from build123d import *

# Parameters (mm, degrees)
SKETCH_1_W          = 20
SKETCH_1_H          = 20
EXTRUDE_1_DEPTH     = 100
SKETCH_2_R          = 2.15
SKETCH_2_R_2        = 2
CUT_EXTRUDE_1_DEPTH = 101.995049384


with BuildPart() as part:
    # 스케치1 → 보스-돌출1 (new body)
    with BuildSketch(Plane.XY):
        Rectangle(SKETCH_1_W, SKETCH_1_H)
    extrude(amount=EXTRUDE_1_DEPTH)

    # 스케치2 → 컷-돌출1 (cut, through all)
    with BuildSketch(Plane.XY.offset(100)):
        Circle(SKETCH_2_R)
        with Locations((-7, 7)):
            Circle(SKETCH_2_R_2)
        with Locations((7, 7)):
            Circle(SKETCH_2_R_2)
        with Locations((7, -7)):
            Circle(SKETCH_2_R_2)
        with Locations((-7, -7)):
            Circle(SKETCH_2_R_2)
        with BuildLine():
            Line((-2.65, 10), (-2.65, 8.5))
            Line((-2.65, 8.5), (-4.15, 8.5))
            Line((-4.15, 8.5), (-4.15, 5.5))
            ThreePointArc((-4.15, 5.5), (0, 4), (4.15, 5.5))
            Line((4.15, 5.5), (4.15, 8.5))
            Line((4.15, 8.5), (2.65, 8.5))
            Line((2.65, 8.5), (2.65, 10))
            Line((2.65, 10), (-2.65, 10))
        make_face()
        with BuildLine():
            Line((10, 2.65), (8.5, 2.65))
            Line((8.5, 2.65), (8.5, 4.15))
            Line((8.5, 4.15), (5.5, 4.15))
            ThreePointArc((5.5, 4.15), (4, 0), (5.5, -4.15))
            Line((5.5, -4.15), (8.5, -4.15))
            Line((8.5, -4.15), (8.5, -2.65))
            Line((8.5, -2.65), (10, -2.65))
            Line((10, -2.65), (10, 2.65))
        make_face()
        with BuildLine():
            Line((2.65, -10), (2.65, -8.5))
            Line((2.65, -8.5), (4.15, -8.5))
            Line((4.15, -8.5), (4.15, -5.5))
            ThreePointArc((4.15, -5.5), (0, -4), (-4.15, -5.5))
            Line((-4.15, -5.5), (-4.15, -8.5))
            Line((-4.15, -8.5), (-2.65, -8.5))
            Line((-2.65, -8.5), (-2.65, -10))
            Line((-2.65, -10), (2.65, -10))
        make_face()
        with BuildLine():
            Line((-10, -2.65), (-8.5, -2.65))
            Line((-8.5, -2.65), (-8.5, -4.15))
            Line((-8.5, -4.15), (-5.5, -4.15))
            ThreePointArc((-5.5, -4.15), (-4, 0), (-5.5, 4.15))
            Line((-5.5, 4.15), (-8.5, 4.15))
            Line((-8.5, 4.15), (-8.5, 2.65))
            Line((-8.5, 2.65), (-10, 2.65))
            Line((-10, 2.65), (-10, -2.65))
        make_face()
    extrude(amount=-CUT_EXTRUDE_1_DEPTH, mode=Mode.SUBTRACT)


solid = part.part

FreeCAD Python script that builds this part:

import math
import FreeCAD as App
import Part
import Sketcher


def add_polygon(sketch, points):
    """Adds a closed chain of lines whose ends are joined by coincident constraints."""
    first, n = sketch.GeometryCount, len(points)
    for a, b in zip(points, points[1:] + points[:1]):
        sketch.addGeometry(Part.LineSegment(App.Vector(*a, 0), App.Vector(*b, 0)), False)
    for i in range(n):
        sketch.addConstraint(Sketcher.Constraint("Coincident", first + i, 2, first + (i + 1) % n, 1))

doc = App.newDocument("Part")
body = doc.addObject("PartDesign::Body", "Body")

# Sketch on XY plane
sketch1 = body.newObject("Sketcher::SketchObject", "Sketch")
sketch1.AttachmentSupport = (doc.getObject("XY_Plane"), [""])
sketch1.MapMode = "FlatFace"
add_polygon(sketch1, [(-10, 10), (-10, -10), (10, -10), (10, 10)])  # lines 0-3
sketch1.addConstraint([
    Sketcher.Constraint("Vertical", 0),
    Sketcher.Constraint("Horizontal", 1),
    Sketcher.Constraint("Vertical", 2),
    Sketcher.Constraint("Horizontal", 3),
    Sketcher.Constraint("Symmetric", 0, 2, 2, 2, -1, 1),
    Sketcher.Constraint("Equal", 3, 0),
    Sketcher.Constraint("DistanceX", 1, 1, 1, 2, 20.0),
])
pad1 = body.newObject("PartDesign::Pad", "Pad")
pad1.Profile = sketch1
pad1.Length = 100

# Sketch on XY plane
sketch2 = body.newObject("Sketcher::SketchObject", "Sketch001")
sketch2.AttachmentSupport = (doc.getObject("XY_Plane"), [""])
sketch2.MapMode = "FlatFace"
sketch2.AttachmentOffset = App.Placement(App.Vector(0, 0, 100), App.Rotation())
sketch2.addGeometry([
    Part.Circle(App.Vector(0, 0, 0), App.Vector(0, 0, 1), 2.15),  # 0
    Part.Circle(App.Vector(-7, 7, 0), App.Vector(0, 0, 1), 2),  # 1
    Part.Circle(App.Vector(7, 7, 0), App.Vector(0, 0, 1), 2),  # 2
    Part.Circle(App.Vector(7, -7, 0), App.Vector(0, 0, 1), 2),  # 3
    Part.Circle(App.Vector(-7, -7, 0), App.Vector(0, 0, 1), 2),  # 4
    Part.LineSegment(App.Vector(-2.65, 10, 0), App.Vector(-2.65, 8.5, 0)),  # 5
    Part.LineSegment(App.Vector(-2.65, 8.5, 0), App.Vector(-4.15, 8.5, 0)),  # 6
    Part.LineSegment(App.Vector(-4.15, 8.5, 0), App.Vector(-4.15, 5.5, 0)),  # 7
    Part.ArcOfCircle(Part.Circle(App.Vector(0, 10.490833, 0), App.Vector(0, 0, 1), 6.490833), math.radians(-129.744352), math.radians(-50.255648)),  # 8
    Part.LineSegment(App.Vector(4.15, 5.5, 0), App.Vector(4.15, 8.5, 0)),  # 9
    Part.LineSegment(App.Vector(4.15, 8.5, 0), App.Vector(2.65, 8.5, 0)),  # 10
    Part.LineSegment(App.Vector(2.65, 8.5, 0), App.Vector(2.65, 10, 0)),  # 11
    Part.LineSegment(App.Vector(2.65, 10, 0), App.Vector(-2.65, 10, 0)),  # 12
    Part.LineSegment(App.Vector(10, 2.65, 0), App.Vector(8.5, 2.65, 0)),  # 13
    Part.LineSegment(App.Vector(8.5, 2.65, 0), App.Vector(8.5, 4.15, 0)),  # 14
    Part.LineSegment(App.Vector(8.5, 4.15, 0), App.Vector(5.5, 4.15, 0)),  # 15
    Part.ArcOfCircle(Part.Circle(App.Vector(10.490833, 0, 0), App.Vector(0, 0, 1), 6.490833), math.radians(140.255648), math.radians(219.744352)),  # 16
    Part.LineSegment(App.Vector(5.5, -4.15, 0), App.Vector(8.5, -4.15, 0)),  # 17
    Part.LineSegment(App.Vector(8.5, -4.15, 0), App.Vector(8.5, -2.65, 0)),  # 18
    Part.LineSegment(App.Vector(8.5, -2.65, 0), App.Vector(10, -2.65, 0)),  # 19
    Part.LineSegment(App.Vector(10, -2.65, 0), App.Vector(10, 2.65, 0)),  # 20
    Part.LineSegment(App.Vector(2.65, -10, 0), App.Vector(2.65, -8.5, 0)),  # 21
    Part.LineSegment(App.Vector(2.65, -8.5, 0), App.Vector(4.15, -8.5, 0)),  # 22
    Part.LineSegment(App.Vector(4.15, -8.5, 0), App.Vector(4.15, -5.5, 0)),  # 23
    Part.ArcOfCircle(Part.Circle(App.Vector(0, -10.490833, 0), App.Vector(0, 0, 1), 6.490833), math.radians(50.255648), math.radians(129.744352)),  # 24
    Part.LineSegment(App.Vector(-4.15, -5.5, 0), App.Vector(-4.15, -8.5, 0)),  # 25
    Part.LineSegment(App.Vector(-4.15, -8.5, 0), App.Vector(-2.65, -8.5, 0)),  # 26
    Part.LineSegment(App.Vector(-2.65, -8.5, 0), App.Vector(-2.65, -10, 0)),  # 27
    Part.LineSegment(App.Vector(-2.65, -10, 0), App.Vector(2.65, -10, 0)),  # 28
    Part.LineSegment(App.Vector(-10, -2.65, 0), App.Vector(-8.5, -2.65, 0)),  # 29
    Part.LineSegment(App.Vector(-8.5, -2.65, 0), App.Vector(-8.5, -4.15, 0)),  # 30
    Part.LineSegment(App.Vector(-8.5, -4.15, 0), App.Vector(-5.5, -4.15, 0)),  # 31
    Part.ArcOfCircle(Part.Circle(App.Vector(-10.490833, 0, 0), App.Vector(0, 0, 1), 6.490833), math.radians(-39.744352), math.radians(39.744352)),  # 32
    Part.LineSegment(App.Vector(-5.5, 4.15, 0), App.Vector(-8.5, 4.15, 0)),  # 33
    Part.LineSegment(App.Vector(-8.5, 4.15, 0), App.Vector(-8.5, 2.65, 0)),  # 34
    Part.LineSegment(App.Vector(-8.5, 2.65, 0), App.Vector(-10, 2.65, 0)),  # 35
    Part.LineSegment(App.Vector(-10, 2.65, 0), App.Vector(-10, -2.65, 0)),  # 36
], False)
sketch2.addConstraint([
    Sketcher.Constraint("Coincident", 5, 2, 6, 1),
    Sketcher.Constraint("Coincident", 6, 2, 7, 1),
    Sketcher.Constraint("Coincident", 7, 2, 8, 1),
    Sketcher.Constraint("Coincident", 8, 2, 9, 1),
    Sketcher.Constraint("Coincident", 9, 2, 10, 1),
    Sketcher.Constraint("Coincident", 10, 2, 11, 1),
    Sketcher.Constraint("Coincident", 11, 2, 12, 1),
    Sketcher.Constraint("Coincident", 12, 2, 5, 1),
    Sketcher.Constraint("Coincident", 13, 2, 14, 1),
    Sketcher.Constraint("Coincident", 14, 2, 15, 1),
    Sketcher.Constraint("Coincident", 15, 2, 16, 1),
    Sketcher.Constraint("Coincident", 16, 2, 17, 1),
    Sketcher.Constraint("Coincident", 17, 2, 18, 1),
    Sketcher.Constraint("Coincident", 18, 2, 19, 1),
    Sketcher.Constraint("Coincident", 19, 2, 20, 1),
    Sketcher.Constraint("Coincident", 20, 2, 13, 1),
    Sketcher.Constraint("Coincident", 21, 2, 22, 1),
    Sketcher.Constraint("Coincident", 22, 2, 23, 1),
    Sketcher.Constraint("Coincident", 23, 2, 24, 1),
    Sketcher.Constraint("Coincident", 24, 2, 25, 1),
    Sketcher.Constraint("Coincident", 25, 2, 26, 1),
    Sketcher.Constraint("Coincident", 26, 2, 27, 1),
    Sketcher.Constraint("Coincident", 27, 2, 28, 1),
    Sketcher.Constraint("Coincident", 28, 2, 21, 1),
    Sketcher.Constraint("Coincident", 29, 2, 30, 1),
    Sketcher.Constraint("Coincident", 30, 2, 31, 1),
    Sketcher.Constraint("Coincident", 31, 2, 32, 1),
    Sketcher.Constraint("Coincident", 32, 2, 33, 1),
    Sketcher.Constraint("Coincident", 33, 2, 34, 1),
    Sketcher.Constraint("Coincident", 34, 2, 35, 1),
    Sketcher.Constraint("Coincident", 35, 2, 36, 1),
    Sketcher.Constraint("Coincident", 36, 2, 29, 1),
    Sketcher.Constraint("Vertical", 5),
    Sketcher.Constraint("Horizontal", 6),
    Sketcher.Constraint("Vertical", 7),
    Sketcher.Constraint("Vertical", 9),
    Sketcher.Constraint("Horizontal", 10),
    Sketcher.Constraint("Vertical", 11),
    Sketcher.Constraint("Horizontal", 12),
    Sketcher.Constraint("Horizontal", 13),
    Sketcher.Constraint("Vertical", 14),
    Sketcher.Constraint("Horizontal", 15),
    Sketcher.Constraint("Horizontal", 17),
    Sketcher.Constraint("Vertical", 18),
    Sketcher.Constraint("Horizontal", 19),
    Sketcher.Constraint("Vertical", 20),
    Sketcher.Constraint("Vertical", 21),
    Sketcher.Constraint("Horizontal", 22),
    Sketcher.Constraint("Vertical", 23),
    Sketcher.Constraint("Vertical", 25),
    Sketcher.Constraint("Horizontal", 26),
    Sketcher.Constraint("Vertical", 27),
    Sketcher.Constraint("Horizontal", 28),
    Sketcher.Constraint("Horizontal", 29),
    Sketcher.Constraint("Vertical", 30),
    Sketcher.Constraint("Horizontal", 31),
    Sketcher.Constraint("Horizontal", 33),
    Sketcher.Constraint("Vertical", 34),
    Sketcher.Constraint("Horizontal", 35),
    Sketcher.Constraint("Vertical", 36),
    Sketcher.Constraint("Coincident", 0, 3, -1, 1),
    Sketcher.Constraint("Equal", 1, 2),
    Sketcher.Constraint("Equal", 2, 3),
    Sketcher.Constraint("Equal", 3, 4),
    Sketcher.Constraint("Equal", 8, 16),
    Sketcher.Constraint("Equal", 16, 24),
    Sketcher.Constraint("Equal", 24, 32),
    Sketcher.Constraint("Symmetric", 1, 3, 3, 3, -1, 1),
    Sketcher.Constraint("Symmetric", 2, 3, 4, 3, -1, 1),
    Sketcher.Constraint("Symmetric", 8, 3, 24, 3, -1, 1),
    Sketcher.Constraint("Symmetric", 16, 3, 32, 3, -1, 1),
    Sketcher.Constraint("Symmetric", 5, 2, 21, 2, -1, 1),
    Sketcher.Constraint("Symmetric", 9, 2, 25, 2, -1, 1),
    Sketcher.Constraint("Symmetric", 11, 2, 27, 2, -1, 1),
    Sketcher.Constraint("Symmetric", 13, 2, 29, 2, -1, 1),
    Sketcher.Constraint("Symmetric", 17, 2, 33, 2, -1, 1),
    Sketcher.Constraint("Symmetric", 19, 2, 35, 2, -1, 1),
    Sketcher.Constraint("Symmetric", 1, 3, 2, 3, -2),
    Sketcher.Constraint("Symmetric", 7, 2, 8, 2, -2),
    Sketcher.Constraint("Symmetric", 5, 2, 10, 2, -2),
    Sketcher.Constraint("Symmetric", 18, 2, 29, 2, -2),
    Sketcher.Constraint("Symmetric", 16, 2, 31, 2, -2),
    Sketcher.Constraint("Horizontal", 23, 2, 24, 2),
    Sketcher.Constraint("Horizontal", 15, 2, 32, 2),
    Sketcher.Constraint("Equal", 10, 13),
    Sketcher.Constraint("Equal", 35, 5),
    Sketcher.Constraint("Equal", 33, 7),
    Sketcher.Constraint("Equal", 11, 14),
    Sketcher.Constraint("Equal", 28, 20),
    Sketcher.Constraint("Diameter", 1, 4.0),
    Sketcher.Constraint("Diameter", 0, 4.3),
    Sketcher.Constraint("DistanceX", 15, 2, 15, 1, 3.0),
    Sketcher.Constraint("DistanceX", 6, 2, 6, 1, 1.5),
    Sketcher.Constraint("DistanceX", 12, 2, 12, 1, 5.3),
    Sketcher.Constraint("DistanceX", 1, 3, -1, 1, 7.0),
    Sketcher.Constraint("DistanceY", -1, 1, 1, 3, 7.0),
    Sketcher.Constraint("DistanceY", -1, 1, 11, 2, 10.0),
    Sketcher.Constraint("DistanceX", -1, 1, 19, 2, 10.0),
    Sketcher.Constraint("Radius", 8, 6.490833),
])
pocket1 = body.newObject("PartDesign::Pocket", "Pocket")
pocket1.Profile = sketch2
pocket1.Type = "ThroughAll"

doc.recompute()
